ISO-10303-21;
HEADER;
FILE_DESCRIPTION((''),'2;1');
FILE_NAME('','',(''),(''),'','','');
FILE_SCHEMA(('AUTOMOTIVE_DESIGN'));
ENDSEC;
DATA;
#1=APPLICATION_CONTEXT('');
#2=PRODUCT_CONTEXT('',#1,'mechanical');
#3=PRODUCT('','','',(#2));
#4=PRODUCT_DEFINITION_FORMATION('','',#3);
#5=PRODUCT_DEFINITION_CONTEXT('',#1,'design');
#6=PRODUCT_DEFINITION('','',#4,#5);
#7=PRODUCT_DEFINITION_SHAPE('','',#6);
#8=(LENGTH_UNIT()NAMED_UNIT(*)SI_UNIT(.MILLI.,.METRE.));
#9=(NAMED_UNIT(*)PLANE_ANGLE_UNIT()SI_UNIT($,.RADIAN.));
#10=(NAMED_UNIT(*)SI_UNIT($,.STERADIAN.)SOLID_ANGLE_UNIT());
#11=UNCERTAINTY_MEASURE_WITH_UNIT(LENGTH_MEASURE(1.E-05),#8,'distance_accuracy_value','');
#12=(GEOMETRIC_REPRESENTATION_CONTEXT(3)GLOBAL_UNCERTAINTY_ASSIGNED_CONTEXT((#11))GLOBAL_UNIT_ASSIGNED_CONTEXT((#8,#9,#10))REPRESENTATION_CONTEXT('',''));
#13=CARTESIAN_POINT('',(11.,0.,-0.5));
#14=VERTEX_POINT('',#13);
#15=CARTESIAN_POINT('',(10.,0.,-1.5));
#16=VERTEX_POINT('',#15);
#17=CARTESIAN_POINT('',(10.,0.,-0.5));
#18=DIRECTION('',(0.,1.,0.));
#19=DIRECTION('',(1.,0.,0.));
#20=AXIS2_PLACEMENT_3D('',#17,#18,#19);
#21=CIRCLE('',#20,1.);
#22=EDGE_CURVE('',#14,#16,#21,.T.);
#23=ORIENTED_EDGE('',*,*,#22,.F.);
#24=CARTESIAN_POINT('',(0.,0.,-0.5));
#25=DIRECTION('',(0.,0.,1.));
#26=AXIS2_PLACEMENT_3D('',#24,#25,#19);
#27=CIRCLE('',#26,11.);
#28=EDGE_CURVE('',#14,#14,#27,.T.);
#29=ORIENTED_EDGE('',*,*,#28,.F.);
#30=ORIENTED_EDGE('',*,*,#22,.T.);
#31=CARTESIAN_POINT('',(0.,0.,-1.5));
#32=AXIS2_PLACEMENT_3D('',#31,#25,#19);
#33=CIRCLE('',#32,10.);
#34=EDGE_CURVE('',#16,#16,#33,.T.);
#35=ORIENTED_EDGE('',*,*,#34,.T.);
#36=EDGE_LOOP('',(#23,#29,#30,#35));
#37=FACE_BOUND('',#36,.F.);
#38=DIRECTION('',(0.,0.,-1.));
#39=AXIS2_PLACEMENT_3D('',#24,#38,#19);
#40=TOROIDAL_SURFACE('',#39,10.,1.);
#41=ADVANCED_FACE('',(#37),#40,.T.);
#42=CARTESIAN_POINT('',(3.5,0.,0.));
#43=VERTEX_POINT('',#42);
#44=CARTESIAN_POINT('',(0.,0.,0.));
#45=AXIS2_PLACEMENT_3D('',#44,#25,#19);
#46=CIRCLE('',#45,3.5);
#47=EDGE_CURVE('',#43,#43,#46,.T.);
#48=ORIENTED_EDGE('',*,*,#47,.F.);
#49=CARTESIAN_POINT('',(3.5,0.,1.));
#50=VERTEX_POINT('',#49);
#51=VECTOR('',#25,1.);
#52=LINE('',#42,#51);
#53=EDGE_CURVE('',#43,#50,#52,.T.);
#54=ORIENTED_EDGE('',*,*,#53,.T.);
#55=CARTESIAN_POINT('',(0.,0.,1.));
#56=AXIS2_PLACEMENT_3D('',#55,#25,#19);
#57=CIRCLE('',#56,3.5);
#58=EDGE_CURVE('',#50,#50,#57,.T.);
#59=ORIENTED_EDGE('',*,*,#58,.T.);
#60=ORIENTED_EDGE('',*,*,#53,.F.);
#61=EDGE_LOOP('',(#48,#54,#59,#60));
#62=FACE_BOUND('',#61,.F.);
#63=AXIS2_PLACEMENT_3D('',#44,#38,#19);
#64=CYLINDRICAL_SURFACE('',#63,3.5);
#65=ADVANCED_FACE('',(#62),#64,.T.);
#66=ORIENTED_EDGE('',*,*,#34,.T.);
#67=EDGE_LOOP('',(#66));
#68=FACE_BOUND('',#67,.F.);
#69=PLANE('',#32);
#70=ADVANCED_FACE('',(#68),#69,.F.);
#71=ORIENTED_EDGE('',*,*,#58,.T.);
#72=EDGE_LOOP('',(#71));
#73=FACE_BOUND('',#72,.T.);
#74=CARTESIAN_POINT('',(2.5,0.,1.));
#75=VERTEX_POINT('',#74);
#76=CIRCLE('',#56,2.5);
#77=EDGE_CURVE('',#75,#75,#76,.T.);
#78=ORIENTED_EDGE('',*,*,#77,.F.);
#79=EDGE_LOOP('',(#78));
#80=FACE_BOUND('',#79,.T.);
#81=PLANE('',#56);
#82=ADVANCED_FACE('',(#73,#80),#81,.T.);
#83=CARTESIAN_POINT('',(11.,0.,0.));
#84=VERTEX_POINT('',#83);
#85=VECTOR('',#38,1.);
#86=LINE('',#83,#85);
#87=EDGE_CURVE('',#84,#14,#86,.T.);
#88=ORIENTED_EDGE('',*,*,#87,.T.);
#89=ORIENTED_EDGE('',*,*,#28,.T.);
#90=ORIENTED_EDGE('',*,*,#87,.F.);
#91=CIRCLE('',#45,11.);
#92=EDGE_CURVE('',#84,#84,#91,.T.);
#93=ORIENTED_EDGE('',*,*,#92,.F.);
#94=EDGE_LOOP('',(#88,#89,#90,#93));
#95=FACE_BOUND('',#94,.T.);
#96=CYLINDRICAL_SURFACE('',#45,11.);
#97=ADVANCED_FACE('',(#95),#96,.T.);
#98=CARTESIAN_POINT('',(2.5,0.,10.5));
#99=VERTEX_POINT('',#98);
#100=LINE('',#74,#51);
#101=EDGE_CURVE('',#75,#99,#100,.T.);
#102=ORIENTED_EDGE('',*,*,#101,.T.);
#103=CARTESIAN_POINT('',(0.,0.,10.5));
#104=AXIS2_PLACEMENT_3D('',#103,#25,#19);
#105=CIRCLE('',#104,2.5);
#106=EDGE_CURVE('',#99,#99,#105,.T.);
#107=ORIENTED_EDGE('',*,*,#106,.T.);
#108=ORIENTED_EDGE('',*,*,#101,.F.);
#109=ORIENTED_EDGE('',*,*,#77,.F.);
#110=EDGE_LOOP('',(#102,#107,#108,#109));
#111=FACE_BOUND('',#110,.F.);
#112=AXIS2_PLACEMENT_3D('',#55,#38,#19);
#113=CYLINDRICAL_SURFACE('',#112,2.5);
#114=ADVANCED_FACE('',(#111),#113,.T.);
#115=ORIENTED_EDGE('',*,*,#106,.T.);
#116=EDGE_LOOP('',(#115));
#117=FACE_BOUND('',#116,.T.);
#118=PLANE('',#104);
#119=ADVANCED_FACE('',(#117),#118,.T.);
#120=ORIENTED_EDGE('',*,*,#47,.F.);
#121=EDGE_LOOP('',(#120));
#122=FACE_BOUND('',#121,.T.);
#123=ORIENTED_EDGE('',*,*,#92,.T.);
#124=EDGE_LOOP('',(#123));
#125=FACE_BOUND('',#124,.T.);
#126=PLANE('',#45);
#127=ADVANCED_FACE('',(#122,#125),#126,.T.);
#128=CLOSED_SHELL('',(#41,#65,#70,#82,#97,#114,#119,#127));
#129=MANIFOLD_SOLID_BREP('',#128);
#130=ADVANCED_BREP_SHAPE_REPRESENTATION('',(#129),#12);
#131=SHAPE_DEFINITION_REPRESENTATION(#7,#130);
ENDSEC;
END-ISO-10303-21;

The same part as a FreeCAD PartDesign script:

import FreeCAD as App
import Part
import Sketcher
from FreeCAD import Vector


def edges_at(feature, points):
    """Names of the edges that pass closest to the given points."""
    edges = feature.Shape.Edges
    near = lambda p: min(range(len(edges)), key=lambda i: edges[i].distToShape(Part.Vertex(*p))[0])
    return sorted({f"Edge{near(p) + 1}" for p in points})

doc = App.newDocument("Part")
body = doc.addObject("PartDesign::Body", "Body")

# Sketch on XY plane
sketch1 = body.newObject("Sketcher::SketchObject", "Sketch")
sketch1.AttachmentSupport = (doc.getObject("XY_Plane"), [""])
sketch1.MapMode = "FlatFace"
sketch1.addGeometry(Part.Circle(Vector(0, 0, 0), Vector(0, 0, 1), 11), False)
sketch1.addConstraint([
    Sketcher.Constraint("Coincident", 0, 3, -1, 1),
    Sketcher.Constraint("Diameter", 0, 22.0),
])
pad1 = body.newObject("PartDesign::Pad", "Pad")
pad1.Profile = sketch1
pad1.Length = 1.5
pad1.Reversed = True

# Sketch on XY plane
sketch2 = body.newObject("Sketcher::SketchObject", "Sketch001")
sketch2.AttachmentSupport = (doc.getObject("XY_Plane"), [""])
sketch2.MapMode = "FlatFace"
sketch2.addGeometry(Part.Circle(Vector(0, 0, 0), Vector(0, 0, 1), 3.5), False)
sketch2.addConstraint([
    Sketcher.Constraint("Coincident", 0, 3, -1, 1),
    Sketcher.Constraint("Diameter", 0, 7.0),
])
pad2 = body.newObject("PartDesign::Pad", "Pad001")
pad2.Profile = sketch2
pad2.Length = 1

# Sketch on XY plane
sketch3 = body.newObject("Sketcher::SketchObject", "Sketch002")
sketch3.AttachmentSupport = (doc.getObject("XY_Plane"), [""])
sketch3.MapMode = "FlatFace"
sketch3.AttachmentOffset = App.Placement(Vector(0, 0, 1), App.Rotation())
sketch3.addGeometry(Part.Circle(Vector(0, 0, 0), Vector(0, 0, 1), 2.5), False)
sketch3.addConstraint([
    Sketcher.Constraint("Coincident", 0, 3, -1, 1),
    Sketcher.Constraint("Diameter", 0, 5.0),
])
pad3 = body.newObject("PartDesign::Pad", "Pad002")
pad3.Profile = sketch3
pad3.Length = 9.5
doc.recompute()

fillet = body.newObject("PartDesign::Fillet", "Fillet")
fillet.Base = (pad3, edges_at(pad3, [(-11, 0, -1.5)]))
fillet.Radius = 1

doc.recompute()
